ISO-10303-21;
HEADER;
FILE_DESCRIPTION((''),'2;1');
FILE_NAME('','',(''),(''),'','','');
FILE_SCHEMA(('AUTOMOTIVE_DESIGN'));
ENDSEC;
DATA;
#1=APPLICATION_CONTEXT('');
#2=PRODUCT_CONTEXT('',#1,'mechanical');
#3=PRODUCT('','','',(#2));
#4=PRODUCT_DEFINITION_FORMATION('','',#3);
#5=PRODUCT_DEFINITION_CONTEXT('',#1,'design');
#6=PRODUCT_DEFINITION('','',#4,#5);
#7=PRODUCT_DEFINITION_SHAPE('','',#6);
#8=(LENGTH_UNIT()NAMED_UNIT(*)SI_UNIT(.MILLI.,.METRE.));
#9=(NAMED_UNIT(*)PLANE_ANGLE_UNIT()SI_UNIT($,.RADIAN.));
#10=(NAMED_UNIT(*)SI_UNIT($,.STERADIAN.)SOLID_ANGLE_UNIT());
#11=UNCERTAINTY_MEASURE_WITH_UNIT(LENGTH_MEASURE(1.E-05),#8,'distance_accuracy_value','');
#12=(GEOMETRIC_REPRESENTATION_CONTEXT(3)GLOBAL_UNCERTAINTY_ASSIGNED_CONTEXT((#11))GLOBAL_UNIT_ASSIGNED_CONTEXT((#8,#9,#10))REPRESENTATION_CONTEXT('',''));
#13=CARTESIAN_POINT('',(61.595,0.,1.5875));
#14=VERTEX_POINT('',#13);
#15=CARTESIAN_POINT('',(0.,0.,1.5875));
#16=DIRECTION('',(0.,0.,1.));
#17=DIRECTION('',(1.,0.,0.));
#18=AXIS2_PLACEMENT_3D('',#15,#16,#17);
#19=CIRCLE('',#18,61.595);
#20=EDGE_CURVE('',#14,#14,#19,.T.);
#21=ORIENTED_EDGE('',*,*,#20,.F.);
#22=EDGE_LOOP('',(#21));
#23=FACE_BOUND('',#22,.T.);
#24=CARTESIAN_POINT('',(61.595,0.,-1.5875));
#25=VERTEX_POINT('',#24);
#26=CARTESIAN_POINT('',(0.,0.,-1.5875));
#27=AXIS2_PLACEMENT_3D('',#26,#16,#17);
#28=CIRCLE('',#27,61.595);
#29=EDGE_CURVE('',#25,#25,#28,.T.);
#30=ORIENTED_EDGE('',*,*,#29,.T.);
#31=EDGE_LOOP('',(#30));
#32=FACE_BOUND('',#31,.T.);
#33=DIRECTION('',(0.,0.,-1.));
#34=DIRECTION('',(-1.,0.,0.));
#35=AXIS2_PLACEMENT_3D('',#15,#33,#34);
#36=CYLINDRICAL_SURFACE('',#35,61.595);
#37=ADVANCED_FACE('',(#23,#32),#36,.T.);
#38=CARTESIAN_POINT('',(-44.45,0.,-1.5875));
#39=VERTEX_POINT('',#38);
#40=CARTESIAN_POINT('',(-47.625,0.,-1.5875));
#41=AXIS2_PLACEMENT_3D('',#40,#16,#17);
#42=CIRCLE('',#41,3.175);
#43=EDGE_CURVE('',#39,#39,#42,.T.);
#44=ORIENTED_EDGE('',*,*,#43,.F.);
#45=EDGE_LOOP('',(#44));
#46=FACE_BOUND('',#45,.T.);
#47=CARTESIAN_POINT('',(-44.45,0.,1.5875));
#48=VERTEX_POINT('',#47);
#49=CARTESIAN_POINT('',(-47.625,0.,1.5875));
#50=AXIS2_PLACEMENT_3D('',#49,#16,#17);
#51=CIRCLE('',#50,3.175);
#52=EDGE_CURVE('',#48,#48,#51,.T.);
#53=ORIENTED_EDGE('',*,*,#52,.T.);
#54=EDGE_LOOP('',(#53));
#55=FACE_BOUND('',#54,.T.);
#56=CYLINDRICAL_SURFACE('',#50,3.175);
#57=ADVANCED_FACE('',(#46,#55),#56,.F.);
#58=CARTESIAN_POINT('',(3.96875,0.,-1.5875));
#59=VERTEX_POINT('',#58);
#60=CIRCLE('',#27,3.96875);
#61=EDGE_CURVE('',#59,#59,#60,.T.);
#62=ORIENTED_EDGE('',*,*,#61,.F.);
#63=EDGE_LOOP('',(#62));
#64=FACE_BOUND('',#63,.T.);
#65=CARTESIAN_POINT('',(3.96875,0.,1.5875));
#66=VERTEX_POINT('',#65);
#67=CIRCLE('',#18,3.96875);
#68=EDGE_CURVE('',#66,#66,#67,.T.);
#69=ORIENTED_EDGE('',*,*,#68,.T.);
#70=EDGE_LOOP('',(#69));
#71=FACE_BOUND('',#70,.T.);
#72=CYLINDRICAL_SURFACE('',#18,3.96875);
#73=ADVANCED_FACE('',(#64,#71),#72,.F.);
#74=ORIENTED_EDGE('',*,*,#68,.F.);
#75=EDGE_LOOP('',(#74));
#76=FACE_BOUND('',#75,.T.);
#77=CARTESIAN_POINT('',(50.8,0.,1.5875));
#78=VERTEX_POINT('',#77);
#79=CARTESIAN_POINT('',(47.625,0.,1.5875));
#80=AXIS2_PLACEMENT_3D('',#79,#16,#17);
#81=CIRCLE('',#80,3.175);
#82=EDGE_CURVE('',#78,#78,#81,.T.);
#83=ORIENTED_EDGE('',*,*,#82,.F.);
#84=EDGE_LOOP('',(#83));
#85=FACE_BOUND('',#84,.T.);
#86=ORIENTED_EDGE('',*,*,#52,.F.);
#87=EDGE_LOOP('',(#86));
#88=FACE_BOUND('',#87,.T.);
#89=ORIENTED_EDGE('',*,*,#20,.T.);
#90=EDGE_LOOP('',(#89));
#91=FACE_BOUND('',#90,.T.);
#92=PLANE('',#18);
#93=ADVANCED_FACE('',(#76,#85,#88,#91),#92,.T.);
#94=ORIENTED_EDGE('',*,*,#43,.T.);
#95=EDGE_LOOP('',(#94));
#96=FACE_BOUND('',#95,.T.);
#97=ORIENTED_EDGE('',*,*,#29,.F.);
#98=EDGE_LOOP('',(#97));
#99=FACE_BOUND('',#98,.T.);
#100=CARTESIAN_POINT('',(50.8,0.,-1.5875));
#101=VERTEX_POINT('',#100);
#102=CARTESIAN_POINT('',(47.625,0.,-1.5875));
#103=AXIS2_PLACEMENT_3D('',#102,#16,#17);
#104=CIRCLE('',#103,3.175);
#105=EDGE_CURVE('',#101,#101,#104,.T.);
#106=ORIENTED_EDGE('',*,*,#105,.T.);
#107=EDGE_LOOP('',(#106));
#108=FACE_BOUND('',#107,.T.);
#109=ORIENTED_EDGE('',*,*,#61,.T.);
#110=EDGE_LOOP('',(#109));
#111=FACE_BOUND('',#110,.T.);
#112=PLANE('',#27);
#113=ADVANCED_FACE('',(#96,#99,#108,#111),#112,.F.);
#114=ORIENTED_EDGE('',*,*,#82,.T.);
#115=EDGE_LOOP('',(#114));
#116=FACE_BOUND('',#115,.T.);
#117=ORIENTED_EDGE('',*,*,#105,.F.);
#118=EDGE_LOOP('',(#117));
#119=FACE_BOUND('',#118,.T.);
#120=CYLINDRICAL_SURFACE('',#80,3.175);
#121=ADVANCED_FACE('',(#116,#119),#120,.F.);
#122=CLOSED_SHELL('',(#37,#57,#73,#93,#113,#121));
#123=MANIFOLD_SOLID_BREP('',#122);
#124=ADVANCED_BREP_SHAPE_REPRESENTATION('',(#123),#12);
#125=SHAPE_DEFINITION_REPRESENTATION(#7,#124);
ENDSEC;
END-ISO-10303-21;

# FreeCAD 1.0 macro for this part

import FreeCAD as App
import Part
import Sketcher
from FreeCAD import Vector
Q = App.Units.Quantity

doc = App.newDocument("Part")
params = doc.addObject("Spreadsheet::Sheet", "Params")
for row, (alias, value) in enumerate([
    ("sketch1_diameter", "4.85 in"),
    ("pad1_length", "0.125 in"),
    ("sketch2_diameter", "0.25 in"),
    ("hole_diameter", "0.25 in"),
    ("sketch3_diameter", "0.3125 in"),
    ("hole2_diameter", "0.3125 in"),
    ("hole2_depth", "0.13 in"),
], start=1):
    params.set(f"A{row}", alias)
    params.set(f"B{row}", "=" + value)
    params.setAlias(f"B{row}", alias)

body = doc.addObject("PartDesign::Body", "Body")

# Sketch on XY plane
sketch1 = body.newObject("Sketcher::SketchObject", "Sketch")
sketch1.AttachmentSupport = (doc.getObject("XY_Plane"), [""])
sketch1.MapMode = "FlatFace"
sketch1.addGeometry(Part.Circle(Vector(0, 0, 0), Vector(0, 0, 1), 61.595), False)
sketch1.addConstraint([
    Sketcher.Constraint("Coincident", 0, 3, -1, 1),
    Sketcher.Constraint("Diameter", 0, Q("4.85 in")),
])
sketch1.setExpression("Constraints[1]", "Params.sketch1_diameter")
pad1 = body.newObject("PartDesign::Pad", "Pad")
pad1.Profile = sketch1
pad1.setExpression("Length", "Params.pad1_length")
pad1.Midplane = True

# Sketch on XY plane
sketch2 = body.newObject("Sketcher::SketchObject", "Sketch001")
sketch2.AttachmentSupport = (doc.getObject("XY_Plane"), [""])
sketch2.MapMode = "FlatFace"
sketch2.AttachmentOffset = App.Placement(Vector(0, 0, 0.0625 * 25.4), App.Rotation())
sketch2.addGeometry([
    Part.Circle(Vector(-47.625, 0, 0), Vector(0, 0, 1), 3.175),
    Part.Circle(Vector(47.625, 0, 0), Vector(0, 0, 1), 3.175),
], False)
sketch2.addConstraint([
    Sketcher.Constraint("Equal", 0, 1),
    Sketcher.Constraint("Symmetric", 0, 3, 1, 3, -1, 1),
    Sketcher.Constraint("PointOnObject", 0, 3, -1),
    Sketcher.Constraint("Diameter", 0, Q("0.25 in")),
    Sketcher.Constraint("DistanceX", 0, 3, 1, 3, Q("3.75 in")),
])
sketch2.setExpression("Constraints[3]", "Params.sketch2_diameter")
doc.recompute()
hole = body.newObject("PartDesign::Hole", "Hole")
hole.Profile = sketch2
hole.ThreadType = "None"
hole.setExpression("Diameter", "Params.hole_diameter")
hole.DepthType = "ThroughAll"

# Sketch on XY plane
sketch3 = body.newObject("Sketcher::SketchObject", "Sketch002")
sketch3.AttachmentSupport = (doc.getObject("XY_Plane"), [""])
sketch3.MapMode = "FlatFace"
sketch3.AttachmentOffset = App.Placement(Vector(0, 0, 0.0625 * 25.4), App.Rotation())
sketch3.addGeometry(Part.Circle(Vector(0, 0, 0), Vector(0, 0, 1), 3.96875), False)
sketch3.addConstraint([
    Sketcher.Constraint("Coincident", 0, 3, -1, 1),
    Sketcher.Constraint("Diameter", 0, Q("0.3125 in")),
])
sketch3.setExpression("Constraints[1]", "Params.sketch3_diameter")
doc.recompute()
hole2 = body.newObject("PartDesign::Hole", "Hole001")
hole2.Profile = sketch3
hole2.ThreadType = "None"
hole2.setExpression("Diameter", "Params.hole2_diameter")
hole2.DepthType = "Dimension"
hole2.setExpression("Depth", "Params.hole2_depth")
hole2.DrillPoint = "Flat"

doc.recompute()
